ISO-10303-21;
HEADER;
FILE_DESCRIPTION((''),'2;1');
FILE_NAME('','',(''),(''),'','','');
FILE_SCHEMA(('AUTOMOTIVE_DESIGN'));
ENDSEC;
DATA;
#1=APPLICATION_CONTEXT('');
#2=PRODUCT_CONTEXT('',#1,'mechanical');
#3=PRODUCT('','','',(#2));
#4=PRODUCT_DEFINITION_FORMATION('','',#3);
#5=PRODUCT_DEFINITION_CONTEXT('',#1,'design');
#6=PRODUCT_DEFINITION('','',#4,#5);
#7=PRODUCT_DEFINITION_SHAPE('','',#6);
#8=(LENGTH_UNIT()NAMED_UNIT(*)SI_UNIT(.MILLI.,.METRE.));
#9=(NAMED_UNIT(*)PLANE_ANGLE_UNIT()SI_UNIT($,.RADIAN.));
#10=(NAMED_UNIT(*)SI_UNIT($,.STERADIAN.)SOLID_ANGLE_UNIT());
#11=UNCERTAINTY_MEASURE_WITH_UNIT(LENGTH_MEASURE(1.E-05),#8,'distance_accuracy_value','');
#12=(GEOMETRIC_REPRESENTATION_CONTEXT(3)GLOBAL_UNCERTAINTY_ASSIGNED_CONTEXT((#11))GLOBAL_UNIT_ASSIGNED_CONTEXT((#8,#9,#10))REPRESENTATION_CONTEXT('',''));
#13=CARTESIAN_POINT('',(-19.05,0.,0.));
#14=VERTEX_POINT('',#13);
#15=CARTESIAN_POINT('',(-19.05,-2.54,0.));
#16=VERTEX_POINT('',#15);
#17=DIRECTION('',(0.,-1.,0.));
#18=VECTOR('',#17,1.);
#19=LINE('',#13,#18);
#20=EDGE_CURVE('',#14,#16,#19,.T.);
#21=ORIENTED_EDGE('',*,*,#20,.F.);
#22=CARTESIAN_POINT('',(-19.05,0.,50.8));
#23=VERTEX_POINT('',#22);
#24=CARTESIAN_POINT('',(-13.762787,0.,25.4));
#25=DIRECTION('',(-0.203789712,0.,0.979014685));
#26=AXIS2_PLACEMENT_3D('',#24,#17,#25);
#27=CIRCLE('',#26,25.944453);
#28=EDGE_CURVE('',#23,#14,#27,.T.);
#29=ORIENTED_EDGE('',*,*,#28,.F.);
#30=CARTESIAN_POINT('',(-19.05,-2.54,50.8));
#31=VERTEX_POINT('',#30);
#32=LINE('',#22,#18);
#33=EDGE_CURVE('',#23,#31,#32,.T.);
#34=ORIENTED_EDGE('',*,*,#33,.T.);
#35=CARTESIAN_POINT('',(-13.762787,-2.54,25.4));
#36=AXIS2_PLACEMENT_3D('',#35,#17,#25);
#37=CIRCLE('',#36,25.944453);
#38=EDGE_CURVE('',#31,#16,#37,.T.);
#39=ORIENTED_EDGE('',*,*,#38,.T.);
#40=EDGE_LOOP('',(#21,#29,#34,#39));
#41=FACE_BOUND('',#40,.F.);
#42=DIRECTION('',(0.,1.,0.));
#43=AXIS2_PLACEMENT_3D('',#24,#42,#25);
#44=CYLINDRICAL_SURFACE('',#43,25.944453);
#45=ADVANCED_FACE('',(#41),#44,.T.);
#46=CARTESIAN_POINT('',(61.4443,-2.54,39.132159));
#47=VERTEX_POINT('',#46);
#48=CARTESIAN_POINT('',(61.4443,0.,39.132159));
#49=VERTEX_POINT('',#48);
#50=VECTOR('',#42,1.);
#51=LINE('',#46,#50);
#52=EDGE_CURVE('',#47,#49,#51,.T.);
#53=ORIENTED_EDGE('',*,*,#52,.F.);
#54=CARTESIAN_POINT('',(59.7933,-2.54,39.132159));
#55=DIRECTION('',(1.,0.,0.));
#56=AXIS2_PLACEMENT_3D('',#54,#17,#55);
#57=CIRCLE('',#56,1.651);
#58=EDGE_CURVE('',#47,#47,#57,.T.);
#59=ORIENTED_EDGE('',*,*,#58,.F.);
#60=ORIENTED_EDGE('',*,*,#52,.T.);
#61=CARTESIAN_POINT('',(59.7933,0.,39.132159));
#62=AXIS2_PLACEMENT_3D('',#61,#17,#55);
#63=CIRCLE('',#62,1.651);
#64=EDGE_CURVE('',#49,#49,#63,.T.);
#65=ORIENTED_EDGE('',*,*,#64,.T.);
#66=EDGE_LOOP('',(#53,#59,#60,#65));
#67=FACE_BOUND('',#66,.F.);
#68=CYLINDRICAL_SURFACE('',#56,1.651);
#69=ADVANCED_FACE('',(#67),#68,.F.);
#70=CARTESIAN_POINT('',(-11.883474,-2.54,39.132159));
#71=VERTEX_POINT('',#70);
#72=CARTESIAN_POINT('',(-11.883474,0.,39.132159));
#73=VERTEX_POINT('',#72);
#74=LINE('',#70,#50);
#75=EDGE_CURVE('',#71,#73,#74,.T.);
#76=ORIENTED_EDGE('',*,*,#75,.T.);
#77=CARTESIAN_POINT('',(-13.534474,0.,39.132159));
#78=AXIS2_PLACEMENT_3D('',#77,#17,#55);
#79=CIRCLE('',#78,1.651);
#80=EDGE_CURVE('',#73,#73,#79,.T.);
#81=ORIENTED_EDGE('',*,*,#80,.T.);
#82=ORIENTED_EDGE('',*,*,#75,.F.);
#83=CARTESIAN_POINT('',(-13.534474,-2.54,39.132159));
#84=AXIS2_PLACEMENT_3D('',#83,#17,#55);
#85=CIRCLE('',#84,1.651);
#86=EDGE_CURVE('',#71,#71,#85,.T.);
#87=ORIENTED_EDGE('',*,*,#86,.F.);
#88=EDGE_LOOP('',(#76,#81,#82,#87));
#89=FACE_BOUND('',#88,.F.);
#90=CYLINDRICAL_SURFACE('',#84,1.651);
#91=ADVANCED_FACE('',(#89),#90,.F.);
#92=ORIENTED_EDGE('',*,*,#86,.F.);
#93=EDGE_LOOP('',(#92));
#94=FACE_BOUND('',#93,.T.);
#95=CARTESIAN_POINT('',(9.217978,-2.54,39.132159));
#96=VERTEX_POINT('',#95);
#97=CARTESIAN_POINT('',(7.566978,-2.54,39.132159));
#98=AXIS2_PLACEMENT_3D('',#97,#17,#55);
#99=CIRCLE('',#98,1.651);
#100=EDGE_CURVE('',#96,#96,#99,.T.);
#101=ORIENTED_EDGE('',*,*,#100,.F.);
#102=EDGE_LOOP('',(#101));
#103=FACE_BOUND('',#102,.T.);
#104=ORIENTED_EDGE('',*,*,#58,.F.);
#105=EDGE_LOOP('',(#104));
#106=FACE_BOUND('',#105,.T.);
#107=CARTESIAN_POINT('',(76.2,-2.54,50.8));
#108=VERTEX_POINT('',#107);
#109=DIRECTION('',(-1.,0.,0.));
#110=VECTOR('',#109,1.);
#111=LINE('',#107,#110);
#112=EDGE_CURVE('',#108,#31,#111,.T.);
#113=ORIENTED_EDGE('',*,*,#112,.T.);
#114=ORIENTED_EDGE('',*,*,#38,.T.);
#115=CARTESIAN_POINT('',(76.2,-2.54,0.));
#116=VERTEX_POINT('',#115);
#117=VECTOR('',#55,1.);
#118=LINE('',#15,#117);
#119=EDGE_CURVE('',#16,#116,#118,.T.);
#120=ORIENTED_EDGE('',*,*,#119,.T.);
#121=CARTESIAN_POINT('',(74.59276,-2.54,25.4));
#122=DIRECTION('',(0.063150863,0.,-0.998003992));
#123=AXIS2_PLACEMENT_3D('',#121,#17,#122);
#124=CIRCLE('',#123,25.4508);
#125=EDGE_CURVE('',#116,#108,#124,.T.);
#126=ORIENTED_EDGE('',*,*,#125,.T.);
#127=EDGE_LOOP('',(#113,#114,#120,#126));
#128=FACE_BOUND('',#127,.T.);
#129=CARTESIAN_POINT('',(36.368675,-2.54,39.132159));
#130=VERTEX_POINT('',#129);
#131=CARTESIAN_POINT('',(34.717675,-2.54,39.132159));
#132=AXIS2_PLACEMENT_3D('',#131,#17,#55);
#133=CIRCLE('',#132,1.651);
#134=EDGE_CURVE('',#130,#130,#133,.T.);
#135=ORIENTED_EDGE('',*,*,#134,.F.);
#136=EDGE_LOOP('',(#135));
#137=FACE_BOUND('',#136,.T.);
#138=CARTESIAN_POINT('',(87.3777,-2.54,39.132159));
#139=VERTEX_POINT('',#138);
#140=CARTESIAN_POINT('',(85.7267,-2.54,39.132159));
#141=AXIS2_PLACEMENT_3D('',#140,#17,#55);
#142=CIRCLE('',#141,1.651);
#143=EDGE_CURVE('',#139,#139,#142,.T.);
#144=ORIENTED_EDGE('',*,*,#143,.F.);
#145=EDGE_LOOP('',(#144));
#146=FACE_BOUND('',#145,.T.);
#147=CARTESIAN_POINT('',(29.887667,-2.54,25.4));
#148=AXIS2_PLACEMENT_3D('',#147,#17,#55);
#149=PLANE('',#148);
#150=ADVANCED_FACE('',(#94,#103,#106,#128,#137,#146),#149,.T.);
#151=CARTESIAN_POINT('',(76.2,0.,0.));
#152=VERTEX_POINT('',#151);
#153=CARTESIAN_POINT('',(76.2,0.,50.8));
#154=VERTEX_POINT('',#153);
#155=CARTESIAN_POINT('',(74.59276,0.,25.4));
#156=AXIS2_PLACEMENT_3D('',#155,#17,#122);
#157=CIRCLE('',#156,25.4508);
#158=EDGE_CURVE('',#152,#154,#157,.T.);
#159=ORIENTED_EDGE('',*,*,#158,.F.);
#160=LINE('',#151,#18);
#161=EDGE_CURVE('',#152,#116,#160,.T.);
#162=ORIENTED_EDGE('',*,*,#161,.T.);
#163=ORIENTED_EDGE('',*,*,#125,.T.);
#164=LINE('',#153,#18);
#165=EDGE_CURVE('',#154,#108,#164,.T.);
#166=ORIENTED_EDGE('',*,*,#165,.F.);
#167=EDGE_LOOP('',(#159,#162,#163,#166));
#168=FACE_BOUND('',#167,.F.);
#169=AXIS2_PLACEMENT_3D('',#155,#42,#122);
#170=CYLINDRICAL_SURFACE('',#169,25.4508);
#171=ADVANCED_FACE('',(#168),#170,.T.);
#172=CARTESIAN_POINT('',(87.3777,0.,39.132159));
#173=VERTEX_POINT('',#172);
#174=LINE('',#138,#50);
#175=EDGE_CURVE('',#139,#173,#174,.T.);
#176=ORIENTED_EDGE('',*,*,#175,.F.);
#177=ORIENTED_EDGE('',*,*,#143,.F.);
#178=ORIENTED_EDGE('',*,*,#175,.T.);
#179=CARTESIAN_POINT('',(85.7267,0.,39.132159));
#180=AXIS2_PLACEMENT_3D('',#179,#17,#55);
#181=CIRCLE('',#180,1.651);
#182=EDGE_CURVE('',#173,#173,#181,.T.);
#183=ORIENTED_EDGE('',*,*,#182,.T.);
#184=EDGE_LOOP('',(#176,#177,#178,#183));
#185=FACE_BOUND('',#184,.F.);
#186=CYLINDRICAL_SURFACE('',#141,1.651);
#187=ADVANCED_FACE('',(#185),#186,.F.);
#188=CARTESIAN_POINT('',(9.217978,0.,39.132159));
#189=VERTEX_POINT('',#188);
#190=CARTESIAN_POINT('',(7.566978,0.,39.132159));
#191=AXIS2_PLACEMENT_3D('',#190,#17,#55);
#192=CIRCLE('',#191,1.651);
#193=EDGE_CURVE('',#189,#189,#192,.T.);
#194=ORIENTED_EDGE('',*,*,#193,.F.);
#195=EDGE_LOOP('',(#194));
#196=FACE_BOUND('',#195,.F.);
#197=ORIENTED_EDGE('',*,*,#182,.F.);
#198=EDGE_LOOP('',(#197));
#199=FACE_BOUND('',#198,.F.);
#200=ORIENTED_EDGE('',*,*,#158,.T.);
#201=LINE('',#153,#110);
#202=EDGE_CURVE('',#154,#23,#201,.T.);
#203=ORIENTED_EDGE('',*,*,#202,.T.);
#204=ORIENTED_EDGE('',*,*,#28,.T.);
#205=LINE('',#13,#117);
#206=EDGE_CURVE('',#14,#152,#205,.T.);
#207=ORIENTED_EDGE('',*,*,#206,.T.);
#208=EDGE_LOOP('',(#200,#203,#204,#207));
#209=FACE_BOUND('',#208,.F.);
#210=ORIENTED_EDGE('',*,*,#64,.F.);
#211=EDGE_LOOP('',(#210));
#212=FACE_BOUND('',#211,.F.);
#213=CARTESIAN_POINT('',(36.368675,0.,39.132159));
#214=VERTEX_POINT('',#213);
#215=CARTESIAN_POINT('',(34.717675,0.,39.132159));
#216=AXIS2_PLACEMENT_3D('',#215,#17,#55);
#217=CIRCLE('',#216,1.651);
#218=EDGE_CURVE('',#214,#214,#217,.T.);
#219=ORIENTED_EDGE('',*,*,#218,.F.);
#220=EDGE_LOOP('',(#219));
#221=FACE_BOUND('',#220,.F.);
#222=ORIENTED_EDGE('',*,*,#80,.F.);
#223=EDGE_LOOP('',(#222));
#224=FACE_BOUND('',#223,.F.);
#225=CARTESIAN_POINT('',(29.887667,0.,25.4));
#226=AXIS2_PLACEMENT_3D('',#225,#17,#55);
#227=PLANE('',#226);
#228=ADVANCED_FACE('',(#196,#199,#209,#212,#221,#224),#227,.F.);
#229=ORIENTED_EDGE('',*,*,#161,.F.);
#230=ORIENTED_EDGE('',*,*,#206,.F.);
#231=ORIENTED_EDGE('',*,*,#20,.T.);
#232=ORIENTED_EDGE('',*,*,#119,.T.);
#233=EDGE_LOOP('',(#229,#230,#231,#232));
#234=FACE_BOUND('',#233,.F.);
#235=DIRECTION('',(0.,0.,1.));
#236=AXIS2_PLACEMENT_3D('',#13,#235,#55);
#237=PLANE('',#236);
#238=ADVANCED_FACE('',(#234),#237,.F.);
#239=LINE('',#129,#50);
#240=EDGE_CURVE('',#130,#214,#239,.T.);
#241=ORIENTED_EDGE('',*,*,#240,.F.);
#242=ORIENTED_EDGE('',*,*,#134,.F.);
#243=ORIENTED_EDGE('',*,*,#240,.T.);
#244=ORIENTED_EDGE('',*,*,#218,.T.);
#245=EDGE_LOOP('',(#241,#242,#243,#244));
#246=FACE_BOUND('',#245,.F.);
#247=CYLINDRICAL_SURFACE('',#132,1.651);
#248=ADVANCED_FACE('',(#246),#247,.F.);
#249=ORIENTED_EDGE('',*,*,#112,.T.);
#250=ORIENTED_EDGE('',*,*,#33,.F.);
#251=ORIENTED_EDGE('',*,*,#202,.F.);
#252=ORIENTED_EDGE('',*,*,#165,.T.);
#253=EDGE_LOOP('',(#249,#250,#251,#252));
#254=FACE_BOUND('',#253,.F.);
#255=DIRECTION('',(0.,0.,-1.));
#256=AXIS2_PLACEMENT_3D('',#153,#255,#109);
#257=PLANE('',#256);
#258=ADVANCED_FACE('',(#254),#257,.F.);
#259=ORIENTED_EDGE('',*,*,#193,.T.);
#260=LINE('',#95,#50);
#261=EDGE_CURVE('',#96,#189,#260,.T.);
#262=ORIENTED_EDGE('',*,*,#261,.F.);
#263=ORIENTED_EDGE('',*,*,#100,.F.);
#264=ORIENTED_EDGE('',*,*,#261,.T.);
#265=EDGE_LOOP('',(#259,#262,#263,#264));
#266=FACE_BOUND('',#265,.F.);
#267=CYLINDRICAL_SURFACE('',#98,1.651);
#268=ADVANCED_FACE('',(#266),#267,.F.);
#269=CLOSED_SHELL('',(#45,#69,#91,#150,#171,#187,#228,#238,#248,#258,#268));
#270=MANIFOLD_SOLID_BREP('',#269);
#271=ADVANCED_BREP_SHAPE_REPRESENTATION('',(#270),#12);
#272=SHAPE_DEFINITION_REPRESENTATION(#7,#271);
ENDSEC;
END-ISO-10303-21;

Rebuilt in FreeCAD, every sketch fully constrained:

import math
import FreeCAD as App
import Part
import Sketcher
from FreeCAD import Vector
Q = App.Units.Quantity

doc = App.newDocument("Part")
body = doc.addObject("PartDesign::Body", "Body")

sketch1 = doc.addObject("Sketcher::SketchObject", "Sketch")
body.addObject(sketch1)
sketch1.AttachmentSupport = (doc.XZ_Plane, [""])
sketch1.MapMode = "FlatFace"
sketch1.addGeometry(Part.LineSegment(Vector(-19, 0, 0), Vector(76, 0, 0)), False)
sketch1.addGeometry(Part.ArcOfCircle(Part.Circle(Vector(75, 25, 0), Vector(0, 0, 1), 25), math.radians(-86), math.radians(86)), False)
sketch1.addGeometry(Part.LineSegment(Vector(76, 51, 0), Vector(-19, 51, 0)), False)
sketch1.addGeometry(Part.ArcOfCircle(Part.Circle(Vector(-14, 25, 0), Vector(0, 0, 1), 26), math.radians(102), math.radians(258)), False)
sketch1.addConstraint(Sketcher.Constraint("Coincident", 0, 2, 1, 1))
sketch1.addConstraint(Sketcher.Constraint("Coincident", 1, 2, 2, 1))
sketch1.addConstraint(Sketcher.Constraint("Coincident", 2, 2, 3, 1))
sketch1.addConstraint(Sketcher.Constraint("Coincident", 3, 2, 0, 1))
sketch1.addConstraint(Sketcher.Constraint("Horizontal", 0))
sketch1.addConstraint(Sketcher.Constraint("Horizontal", 2))
sketch1.addConstraint(Sketcher.Constraint("PointOnObject", 0, 2, -1))
sketch1.addConstraint(Sketcher.Constraint("Horizontal", 1, 3, 3, 3))
sketch1.addConstraint(Sketcher.Constraint("Vertical", 0, 2, 1, 2))
sketch1.addConstraint(Sketcher.Constraint("DistanceY", -1, 1, 1, 3, Q("1 in")))
sketch1.addConstraint(Sketcher.Constraint("DistanceX", -1, 1, 0, 2, Q("3 in")))
sketch1.addConstraint(Sketcher.Constraint("Radius", 1, Q("1.002 in")))
sketch1.addConstraint(Sketcher.Constraint("DistanceX", 0, 1, 0, 2, Q("3.75 in")))
sketch1.addConstraint(Sketcher.Constraint("Radius", 3, Q("25.944453 mm")))
pad1 = doc.addObject("PartDesign::Pad", "Pad")
body.addObject(pad1)
pad1.Profile = sketch1
pad1.Length = Q("0.1 in")

sketch2 = doc.addObject("Sketcher::SketchObject", "Sketch001")
body.addObject(sketch2)
sketch2.AttachmentSupport = (doc.XZ_Plane, [""])
sketch2.MapMode = "FlatFace"
sketch2.AttachmentOffset = App.Placement(Vector(0, 0, 0.1 * 25.4), App.Rotation())
sketch2.addGeometry(Part.Circle(Vector(59.8, 39.1, 0), Vector(0, 0, 1), 1.7), False)
sketch2.addGeometry(Part.Circle(Vector(85.7, 39.1, 0), Vector(0, 0, 1), 1.7), False)
sketch2.addGeometry(Part.Circle(Vector(34.7, 39.1, 0), Vector(0, 0, 1), 1.7), False)
sketch2.addGeometry(Part.Circle(Vector(7.6, 39.1, 0), Vector(0, 0, 1), 1.7), False)
sketch2.addGeometry(Part.Circle(Vector(-13.5, 39.1, 0), Vector(0, 0, 1), 1.7), False)
sketch2.addConstraint(Sketcher.Constraint("Equal", 0, 1))
sketch2.addConstraint(Sketcher.Constraint("Equal", 1, 2))
sketch2.addConstraint(Sketcher.Constraint("Equal", 2, 3))
sketch2.addConstraint(Sketcher.Constraint("Equal", 3, 4))
sketch2.addConstraint(Sketcher.Constraint("Horizontal", 0, 3, 1, 3))
sketch2.addConstraint(Sketcher.Constraint("Horizontal", 1, 3, 2, 3))
sketch2.addConstraint(Sketcher.Constraint("Horizontal", 2, 3, 3, 3))
sketch2.addConstraint(Sketcher.Constraint("Horizontal", 3, 3, 4, 3))
sketch2.addConstraint(Sketcher.Constraint("Diameter", 0, Q("0.13 in")))
sketch2.addConstraint(Sketcher.Constraint("DistanceX", 0, 3, 1, 3, Q("1.021 in")))
sketch2.addConstraint(Sketcher.Constraint("DistanceX", -1, 1, 0, 3, Q("59.7933 mm")))
sketch2.addConstraint(Sketcher.Constraint("DistanceY", -1, 1, 0, 3, Q("39.132159 mm")))
sketch2.addConstraint(Sketcher.Constraint("DistanceX", 3, 3, 1, 3, Q("78.159722 mm")))
sketch2.addConstraint(Sketcher.Constraint("DistanceX", 4, 3, 3, 3, Q("21.101452 mm")))
sketch2.addConstraint(Sketcher.Constraint("DistanceX", 4, 3, 2, 3, Q("48.252149 mm")))
pocket1 = doc.addObject("PartDesign::Pocket", "Pocket")
body.addObject(pocket1)
pocket1.Profile = sketch2
pocket1.Length = Q("1 in")

doc.recompute()
